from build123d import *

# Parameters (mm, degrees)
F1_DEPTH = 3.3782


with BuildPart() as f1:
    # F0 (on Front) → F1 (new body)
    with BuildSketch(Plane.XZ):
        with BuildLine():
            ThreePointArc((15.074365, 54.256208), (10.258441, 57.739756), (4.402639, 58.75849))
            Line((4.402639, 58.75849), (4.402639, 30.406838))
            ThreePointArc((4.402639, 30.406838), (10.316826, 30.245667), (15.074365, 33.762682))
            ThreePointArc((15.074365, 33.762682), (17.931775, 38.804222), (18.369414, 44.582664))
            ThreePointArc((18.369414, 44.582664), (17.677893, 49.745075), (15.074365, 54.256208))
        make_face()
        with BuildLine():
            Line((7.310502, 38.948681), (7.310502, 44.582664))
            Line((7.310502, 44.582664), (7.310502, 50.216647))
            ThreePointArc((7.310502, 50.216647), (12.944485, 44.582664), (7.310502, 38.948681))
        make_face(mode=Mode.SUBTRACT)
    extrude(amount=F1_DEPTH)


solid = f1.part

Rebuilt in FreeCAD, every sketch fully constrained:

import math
import FreeCAD as App
import Part
import Sketcher
from FreeCAD import Vector
Q = App.Units.Quantity

doc = App.newDocument("Part")
body = doc.addObject("PartDesign::Body", "Body")

sketch1 = doc.addObject("Sketcher::SketchObject", "Sketch")
body.addObject(sketch1)
sketch1.AttachmentSupport = (doc.XZ_Plane, [""])
sketch1.MapMode = "FlatFace"
sketch1.addGeometry([
    Part.ArcOfCircle(Part.Circle(Vector(5.125171, 45.572404, 0), Vector(0, 0, 1), 13.205866), math.radians(41.114937), math.radians(93.136388)),
    Part.LineSegment(Vector(4.402639, 58.75849, 0), Vector(4.402639, 30.406838, 0)),
    Part.ArcOfCircle(Part.Circle(Vector(7.59354, 38.905831, 0), Vector(0, 0, 1), 9.078256), math.radians(-110.578373), math.radians(-34.508948)),
    Part.ArcOfCircle(Part.Circle(Vector(5.231472, 42.671892, 0), Vector(0, 0, 1), 13.276165), math.radians(-42.14955), math.radians(8.275032)),
    Part.ArcOfCircle(Part.Circle(Vector(4.964392, 45.414541, 0), Vector(0, 0, 1), 13.430809), math.radians(-3.551057), math.radians(41.171289)),
    Part.ArcOfCircle(Part.Circle(Vector(7.310502, 44.582664, 0), Vector(0, 0, 1), 5.633983), math.radians(-90), math.radians(90)),
    Part.LineSegment(Vector(7.310502, 38.948681, 0), Vector(7.310502, 50.216647, 0)),
], False)
sketch1.addConstraint([
    Sketcher.Constraint("Coincident", 0, 2, 1, 1),
    Sketcher.Constraint("Coincident", 1, 2, 2, 1),
    Sketcher.Constraint("Coincident", 2, 2, 3, 1),
    Sketcher.Constraint("Coincident", 3, 2, 4, 1),
    Sketcher.Constraint("Coincident", 4, 2, 0, 1),
    Sketcher.Constraint("Coincident", 5, 1, 6, 1),
    Sketcher.Constraint("Coincident", 6, 2, 5, 2),
    Sketcher.Constraint("Vertical", 1),
    Sketcher.Constraint("Vertical", 6),
    Sketcher.Constraint("Horizontal", 5, 3, 3, 2),
    Sketcher.Constraint("Vertical", 2, 2, 4, 2),
    Sketcher.Constraint("Radius", 4, 13.430809),
    Sketcher.Constraint("Radius", 0, 13.205866),
    Sketcher.Constraint("Radius", 2, 9.078256),
    Sketcher.Constraint("Radius", 3, 13.276165),
    Sketcher.Constraint("Radius", 5, 5.633983),
    Sketcher.Constraint("DistanceX", -1, 1, 5, 3, 7.310502),
    Sketcher.Constraint("DistanceX", -1, 1, 5, 1, 7.310502),
    Sketcher.Constraint("DistanceX", 0, 3, 3, 3, 0.106301),
    Sketcher.Constraint("DistanceX", 0, 2, 2, 3, 3.190901),
    Sketcher.Constraint("DistanceY", 1, 2, 1, 1, 28.351652),
    Sketcher.Constraint("DistanceX", -1, 1, 0, 3, 5.125171),
    Sketcher.Constraint("DistanceX", -1, 1, 2, 3, 7.59354),
    Sketcher.Constraint("DistanceY", -1, 1, 2, 3, 38.905831),
    Sketcher.Constraint("DistanceY", -1, 1, 4, 3, 45.414541),
    Sketcher.Constraint("DistanceY", -1, 1, 4, 2, 54.256208),
])
pad1 = doc.addObject("PartDesign::Pad", "Pad")
body.addObject(pad1)
pad1.Profile = sketch1
pad1.Length = Q("0.133 in")

doc.recompute()
